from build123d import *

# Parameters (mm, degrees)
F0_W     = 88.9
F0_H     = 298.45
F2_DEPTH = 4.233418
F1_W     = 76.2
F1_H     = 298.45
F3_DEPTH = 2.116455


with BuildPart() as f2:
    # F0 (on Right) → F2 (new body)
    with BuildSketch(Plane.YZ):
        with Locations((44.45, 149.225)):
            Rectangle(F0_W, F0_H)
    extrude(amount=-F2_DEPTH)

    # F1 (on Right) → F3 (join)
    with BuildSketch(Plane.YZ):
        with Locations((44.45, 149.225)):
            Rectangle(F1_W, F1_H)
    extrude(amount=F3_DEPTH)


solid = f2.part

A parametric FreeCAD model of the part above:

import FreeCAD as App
import Part
import Sketcher
from FreeCAD import Vector
Q = App.Units.Quantity

doc = App.newDocument("Part")
body = doc.addObject("PartDesign::Body", "Body")

sketch1 = body.newObject("Sketcher::SketchObject", "Sketch")
sketch1.AttachmentSupport = (doc.getObject("YZ_Plane"), [""])
sketch1.MapMode = "FlatFace"
sketch1.addGeometry(Part.LineSegment(Vector(0, 298, 0), Vector(0, 0, 0)), False)
sketch1.addGeometry(Part.LineSegment(Vector(0, 0, 0), Vector(89, 0, 0)), False)
sketch1.addGeometry(Part.LineSegment(Vector(89, 0, 0), Vector(89, 298, 0)), False)
sketch1.addGeometry(Part.LineSegment(Vector(89, 298, 0), Vector(0, 298, 0)), False)
sketch1.addConstraint(Sketcher.Constraint("Coincident", 0, 2, 1, 1))
sketch1.addConstraint(Sketcher.Constraint("Coincident", 1, 2, 2, 1))
sketch1.addConstraint(Sketcher.Constraint("Coincident", 2, 2, 3, 1))
sketch1.addConstraint(Sketcher.Constraint("Coincident", 3, 2, 0, 1))
sketch1.addConstraint(Sketcher.Constraint("Vertical", 0))
sketch1.addConstraint(Sketcher.Constraint("Horizontal", 1))
sketch1.addConstraint(Sketcher.Constraint("Vertical", 2))
sketch1.addConstraint(Sketcher.Constraint("Horizontal", 3))
sketch1.addConstraint(Sketcher.Constraint("Coincident", 0, 2, -1, 1))
sketch1.addConstraint(Sketcher.Constraint("DistanceX", 1, 1, 1, 2, Q("3.5 in")))
sketch1.addConstraint(Sketcher.Constraint("DistanceY", 0, 2, 0, 1, Q("11.75 in")))
pad1 = body.newObject("PartDesign::Pad", "Pad")
pad1.Profile = sketch1
pad1.Length = 4.233418
pad1.Reversed = True

sketch2 = body.newObject("Sketcher::SketchObject", "Sketch001")
sketch2.AttachmentSupport = (doc.getObject("YZ_Plane"), [""])
sketch2.MapMode = "FlatFace"
sketch2.addGeometry(Part.LineSegment(Vector(6, 298, 0), Vector(6, 0, 0)), False)
sketch2.addGeometry(Part.LineSegment(Vector(6, 0, 0), Vector(83, 0, 0)), False)
sketch2.addGeometry(Part.LineSegment(Vector(83, 0, 0), Vector(83, 298, 0)), False)
sketch2.addGeometry(Part.LineSegment(Vector(83, 298, 0), Vector(6, 298, 0)), False)
sketch2.addConstraint(Sketcher.Constraint("Coincident", 0, 2, 1, 1))
sketch2.addConstraint(Sketcher.Constraint("Coincident", 1, 2, 2, 1))
sketch2.addConstraint(Sketcher.Constraint("Coincident", 2, 2, 3, 1))
sketch2.addConstraint(Sketcher.Constraint("Coincident", 3, 2, 0, 1))
sketch2.addConstraint(Sketcher.Constraint("Vertical", 0))
sketch2.addConstraint(Sketcher.Constraint("Horizontal", 1))
sketch2.addConstraint(Sketcher.Constraint("Vertical", 2))
sketch2.addConstraint(Sketcher.Constraint("Horizontal", 3))
sketch2.addConstraint(Sketcher.Constraint("PointOnObject", 0, 2, -1))
sketch2.addConstraint(Sketcher.Constraint("DistanceX", 1, 1, 1, 2, Q("3 in")))
sketch2.addConstraint(Sketcher.Constraint("DistanceY", 0, 2, 0, 1, Q("11.75 in")))
sketch2.addConstraint(Sketcher.Constraint("DistanceX", -1, 1, 0, 2, Q("0.25 in")))
pad2 = body.newObject("PartDesign::Pad", "Pad001")
pad2.Profile = sketch2
pad2.Length = 2.116455

doc.recompute()
